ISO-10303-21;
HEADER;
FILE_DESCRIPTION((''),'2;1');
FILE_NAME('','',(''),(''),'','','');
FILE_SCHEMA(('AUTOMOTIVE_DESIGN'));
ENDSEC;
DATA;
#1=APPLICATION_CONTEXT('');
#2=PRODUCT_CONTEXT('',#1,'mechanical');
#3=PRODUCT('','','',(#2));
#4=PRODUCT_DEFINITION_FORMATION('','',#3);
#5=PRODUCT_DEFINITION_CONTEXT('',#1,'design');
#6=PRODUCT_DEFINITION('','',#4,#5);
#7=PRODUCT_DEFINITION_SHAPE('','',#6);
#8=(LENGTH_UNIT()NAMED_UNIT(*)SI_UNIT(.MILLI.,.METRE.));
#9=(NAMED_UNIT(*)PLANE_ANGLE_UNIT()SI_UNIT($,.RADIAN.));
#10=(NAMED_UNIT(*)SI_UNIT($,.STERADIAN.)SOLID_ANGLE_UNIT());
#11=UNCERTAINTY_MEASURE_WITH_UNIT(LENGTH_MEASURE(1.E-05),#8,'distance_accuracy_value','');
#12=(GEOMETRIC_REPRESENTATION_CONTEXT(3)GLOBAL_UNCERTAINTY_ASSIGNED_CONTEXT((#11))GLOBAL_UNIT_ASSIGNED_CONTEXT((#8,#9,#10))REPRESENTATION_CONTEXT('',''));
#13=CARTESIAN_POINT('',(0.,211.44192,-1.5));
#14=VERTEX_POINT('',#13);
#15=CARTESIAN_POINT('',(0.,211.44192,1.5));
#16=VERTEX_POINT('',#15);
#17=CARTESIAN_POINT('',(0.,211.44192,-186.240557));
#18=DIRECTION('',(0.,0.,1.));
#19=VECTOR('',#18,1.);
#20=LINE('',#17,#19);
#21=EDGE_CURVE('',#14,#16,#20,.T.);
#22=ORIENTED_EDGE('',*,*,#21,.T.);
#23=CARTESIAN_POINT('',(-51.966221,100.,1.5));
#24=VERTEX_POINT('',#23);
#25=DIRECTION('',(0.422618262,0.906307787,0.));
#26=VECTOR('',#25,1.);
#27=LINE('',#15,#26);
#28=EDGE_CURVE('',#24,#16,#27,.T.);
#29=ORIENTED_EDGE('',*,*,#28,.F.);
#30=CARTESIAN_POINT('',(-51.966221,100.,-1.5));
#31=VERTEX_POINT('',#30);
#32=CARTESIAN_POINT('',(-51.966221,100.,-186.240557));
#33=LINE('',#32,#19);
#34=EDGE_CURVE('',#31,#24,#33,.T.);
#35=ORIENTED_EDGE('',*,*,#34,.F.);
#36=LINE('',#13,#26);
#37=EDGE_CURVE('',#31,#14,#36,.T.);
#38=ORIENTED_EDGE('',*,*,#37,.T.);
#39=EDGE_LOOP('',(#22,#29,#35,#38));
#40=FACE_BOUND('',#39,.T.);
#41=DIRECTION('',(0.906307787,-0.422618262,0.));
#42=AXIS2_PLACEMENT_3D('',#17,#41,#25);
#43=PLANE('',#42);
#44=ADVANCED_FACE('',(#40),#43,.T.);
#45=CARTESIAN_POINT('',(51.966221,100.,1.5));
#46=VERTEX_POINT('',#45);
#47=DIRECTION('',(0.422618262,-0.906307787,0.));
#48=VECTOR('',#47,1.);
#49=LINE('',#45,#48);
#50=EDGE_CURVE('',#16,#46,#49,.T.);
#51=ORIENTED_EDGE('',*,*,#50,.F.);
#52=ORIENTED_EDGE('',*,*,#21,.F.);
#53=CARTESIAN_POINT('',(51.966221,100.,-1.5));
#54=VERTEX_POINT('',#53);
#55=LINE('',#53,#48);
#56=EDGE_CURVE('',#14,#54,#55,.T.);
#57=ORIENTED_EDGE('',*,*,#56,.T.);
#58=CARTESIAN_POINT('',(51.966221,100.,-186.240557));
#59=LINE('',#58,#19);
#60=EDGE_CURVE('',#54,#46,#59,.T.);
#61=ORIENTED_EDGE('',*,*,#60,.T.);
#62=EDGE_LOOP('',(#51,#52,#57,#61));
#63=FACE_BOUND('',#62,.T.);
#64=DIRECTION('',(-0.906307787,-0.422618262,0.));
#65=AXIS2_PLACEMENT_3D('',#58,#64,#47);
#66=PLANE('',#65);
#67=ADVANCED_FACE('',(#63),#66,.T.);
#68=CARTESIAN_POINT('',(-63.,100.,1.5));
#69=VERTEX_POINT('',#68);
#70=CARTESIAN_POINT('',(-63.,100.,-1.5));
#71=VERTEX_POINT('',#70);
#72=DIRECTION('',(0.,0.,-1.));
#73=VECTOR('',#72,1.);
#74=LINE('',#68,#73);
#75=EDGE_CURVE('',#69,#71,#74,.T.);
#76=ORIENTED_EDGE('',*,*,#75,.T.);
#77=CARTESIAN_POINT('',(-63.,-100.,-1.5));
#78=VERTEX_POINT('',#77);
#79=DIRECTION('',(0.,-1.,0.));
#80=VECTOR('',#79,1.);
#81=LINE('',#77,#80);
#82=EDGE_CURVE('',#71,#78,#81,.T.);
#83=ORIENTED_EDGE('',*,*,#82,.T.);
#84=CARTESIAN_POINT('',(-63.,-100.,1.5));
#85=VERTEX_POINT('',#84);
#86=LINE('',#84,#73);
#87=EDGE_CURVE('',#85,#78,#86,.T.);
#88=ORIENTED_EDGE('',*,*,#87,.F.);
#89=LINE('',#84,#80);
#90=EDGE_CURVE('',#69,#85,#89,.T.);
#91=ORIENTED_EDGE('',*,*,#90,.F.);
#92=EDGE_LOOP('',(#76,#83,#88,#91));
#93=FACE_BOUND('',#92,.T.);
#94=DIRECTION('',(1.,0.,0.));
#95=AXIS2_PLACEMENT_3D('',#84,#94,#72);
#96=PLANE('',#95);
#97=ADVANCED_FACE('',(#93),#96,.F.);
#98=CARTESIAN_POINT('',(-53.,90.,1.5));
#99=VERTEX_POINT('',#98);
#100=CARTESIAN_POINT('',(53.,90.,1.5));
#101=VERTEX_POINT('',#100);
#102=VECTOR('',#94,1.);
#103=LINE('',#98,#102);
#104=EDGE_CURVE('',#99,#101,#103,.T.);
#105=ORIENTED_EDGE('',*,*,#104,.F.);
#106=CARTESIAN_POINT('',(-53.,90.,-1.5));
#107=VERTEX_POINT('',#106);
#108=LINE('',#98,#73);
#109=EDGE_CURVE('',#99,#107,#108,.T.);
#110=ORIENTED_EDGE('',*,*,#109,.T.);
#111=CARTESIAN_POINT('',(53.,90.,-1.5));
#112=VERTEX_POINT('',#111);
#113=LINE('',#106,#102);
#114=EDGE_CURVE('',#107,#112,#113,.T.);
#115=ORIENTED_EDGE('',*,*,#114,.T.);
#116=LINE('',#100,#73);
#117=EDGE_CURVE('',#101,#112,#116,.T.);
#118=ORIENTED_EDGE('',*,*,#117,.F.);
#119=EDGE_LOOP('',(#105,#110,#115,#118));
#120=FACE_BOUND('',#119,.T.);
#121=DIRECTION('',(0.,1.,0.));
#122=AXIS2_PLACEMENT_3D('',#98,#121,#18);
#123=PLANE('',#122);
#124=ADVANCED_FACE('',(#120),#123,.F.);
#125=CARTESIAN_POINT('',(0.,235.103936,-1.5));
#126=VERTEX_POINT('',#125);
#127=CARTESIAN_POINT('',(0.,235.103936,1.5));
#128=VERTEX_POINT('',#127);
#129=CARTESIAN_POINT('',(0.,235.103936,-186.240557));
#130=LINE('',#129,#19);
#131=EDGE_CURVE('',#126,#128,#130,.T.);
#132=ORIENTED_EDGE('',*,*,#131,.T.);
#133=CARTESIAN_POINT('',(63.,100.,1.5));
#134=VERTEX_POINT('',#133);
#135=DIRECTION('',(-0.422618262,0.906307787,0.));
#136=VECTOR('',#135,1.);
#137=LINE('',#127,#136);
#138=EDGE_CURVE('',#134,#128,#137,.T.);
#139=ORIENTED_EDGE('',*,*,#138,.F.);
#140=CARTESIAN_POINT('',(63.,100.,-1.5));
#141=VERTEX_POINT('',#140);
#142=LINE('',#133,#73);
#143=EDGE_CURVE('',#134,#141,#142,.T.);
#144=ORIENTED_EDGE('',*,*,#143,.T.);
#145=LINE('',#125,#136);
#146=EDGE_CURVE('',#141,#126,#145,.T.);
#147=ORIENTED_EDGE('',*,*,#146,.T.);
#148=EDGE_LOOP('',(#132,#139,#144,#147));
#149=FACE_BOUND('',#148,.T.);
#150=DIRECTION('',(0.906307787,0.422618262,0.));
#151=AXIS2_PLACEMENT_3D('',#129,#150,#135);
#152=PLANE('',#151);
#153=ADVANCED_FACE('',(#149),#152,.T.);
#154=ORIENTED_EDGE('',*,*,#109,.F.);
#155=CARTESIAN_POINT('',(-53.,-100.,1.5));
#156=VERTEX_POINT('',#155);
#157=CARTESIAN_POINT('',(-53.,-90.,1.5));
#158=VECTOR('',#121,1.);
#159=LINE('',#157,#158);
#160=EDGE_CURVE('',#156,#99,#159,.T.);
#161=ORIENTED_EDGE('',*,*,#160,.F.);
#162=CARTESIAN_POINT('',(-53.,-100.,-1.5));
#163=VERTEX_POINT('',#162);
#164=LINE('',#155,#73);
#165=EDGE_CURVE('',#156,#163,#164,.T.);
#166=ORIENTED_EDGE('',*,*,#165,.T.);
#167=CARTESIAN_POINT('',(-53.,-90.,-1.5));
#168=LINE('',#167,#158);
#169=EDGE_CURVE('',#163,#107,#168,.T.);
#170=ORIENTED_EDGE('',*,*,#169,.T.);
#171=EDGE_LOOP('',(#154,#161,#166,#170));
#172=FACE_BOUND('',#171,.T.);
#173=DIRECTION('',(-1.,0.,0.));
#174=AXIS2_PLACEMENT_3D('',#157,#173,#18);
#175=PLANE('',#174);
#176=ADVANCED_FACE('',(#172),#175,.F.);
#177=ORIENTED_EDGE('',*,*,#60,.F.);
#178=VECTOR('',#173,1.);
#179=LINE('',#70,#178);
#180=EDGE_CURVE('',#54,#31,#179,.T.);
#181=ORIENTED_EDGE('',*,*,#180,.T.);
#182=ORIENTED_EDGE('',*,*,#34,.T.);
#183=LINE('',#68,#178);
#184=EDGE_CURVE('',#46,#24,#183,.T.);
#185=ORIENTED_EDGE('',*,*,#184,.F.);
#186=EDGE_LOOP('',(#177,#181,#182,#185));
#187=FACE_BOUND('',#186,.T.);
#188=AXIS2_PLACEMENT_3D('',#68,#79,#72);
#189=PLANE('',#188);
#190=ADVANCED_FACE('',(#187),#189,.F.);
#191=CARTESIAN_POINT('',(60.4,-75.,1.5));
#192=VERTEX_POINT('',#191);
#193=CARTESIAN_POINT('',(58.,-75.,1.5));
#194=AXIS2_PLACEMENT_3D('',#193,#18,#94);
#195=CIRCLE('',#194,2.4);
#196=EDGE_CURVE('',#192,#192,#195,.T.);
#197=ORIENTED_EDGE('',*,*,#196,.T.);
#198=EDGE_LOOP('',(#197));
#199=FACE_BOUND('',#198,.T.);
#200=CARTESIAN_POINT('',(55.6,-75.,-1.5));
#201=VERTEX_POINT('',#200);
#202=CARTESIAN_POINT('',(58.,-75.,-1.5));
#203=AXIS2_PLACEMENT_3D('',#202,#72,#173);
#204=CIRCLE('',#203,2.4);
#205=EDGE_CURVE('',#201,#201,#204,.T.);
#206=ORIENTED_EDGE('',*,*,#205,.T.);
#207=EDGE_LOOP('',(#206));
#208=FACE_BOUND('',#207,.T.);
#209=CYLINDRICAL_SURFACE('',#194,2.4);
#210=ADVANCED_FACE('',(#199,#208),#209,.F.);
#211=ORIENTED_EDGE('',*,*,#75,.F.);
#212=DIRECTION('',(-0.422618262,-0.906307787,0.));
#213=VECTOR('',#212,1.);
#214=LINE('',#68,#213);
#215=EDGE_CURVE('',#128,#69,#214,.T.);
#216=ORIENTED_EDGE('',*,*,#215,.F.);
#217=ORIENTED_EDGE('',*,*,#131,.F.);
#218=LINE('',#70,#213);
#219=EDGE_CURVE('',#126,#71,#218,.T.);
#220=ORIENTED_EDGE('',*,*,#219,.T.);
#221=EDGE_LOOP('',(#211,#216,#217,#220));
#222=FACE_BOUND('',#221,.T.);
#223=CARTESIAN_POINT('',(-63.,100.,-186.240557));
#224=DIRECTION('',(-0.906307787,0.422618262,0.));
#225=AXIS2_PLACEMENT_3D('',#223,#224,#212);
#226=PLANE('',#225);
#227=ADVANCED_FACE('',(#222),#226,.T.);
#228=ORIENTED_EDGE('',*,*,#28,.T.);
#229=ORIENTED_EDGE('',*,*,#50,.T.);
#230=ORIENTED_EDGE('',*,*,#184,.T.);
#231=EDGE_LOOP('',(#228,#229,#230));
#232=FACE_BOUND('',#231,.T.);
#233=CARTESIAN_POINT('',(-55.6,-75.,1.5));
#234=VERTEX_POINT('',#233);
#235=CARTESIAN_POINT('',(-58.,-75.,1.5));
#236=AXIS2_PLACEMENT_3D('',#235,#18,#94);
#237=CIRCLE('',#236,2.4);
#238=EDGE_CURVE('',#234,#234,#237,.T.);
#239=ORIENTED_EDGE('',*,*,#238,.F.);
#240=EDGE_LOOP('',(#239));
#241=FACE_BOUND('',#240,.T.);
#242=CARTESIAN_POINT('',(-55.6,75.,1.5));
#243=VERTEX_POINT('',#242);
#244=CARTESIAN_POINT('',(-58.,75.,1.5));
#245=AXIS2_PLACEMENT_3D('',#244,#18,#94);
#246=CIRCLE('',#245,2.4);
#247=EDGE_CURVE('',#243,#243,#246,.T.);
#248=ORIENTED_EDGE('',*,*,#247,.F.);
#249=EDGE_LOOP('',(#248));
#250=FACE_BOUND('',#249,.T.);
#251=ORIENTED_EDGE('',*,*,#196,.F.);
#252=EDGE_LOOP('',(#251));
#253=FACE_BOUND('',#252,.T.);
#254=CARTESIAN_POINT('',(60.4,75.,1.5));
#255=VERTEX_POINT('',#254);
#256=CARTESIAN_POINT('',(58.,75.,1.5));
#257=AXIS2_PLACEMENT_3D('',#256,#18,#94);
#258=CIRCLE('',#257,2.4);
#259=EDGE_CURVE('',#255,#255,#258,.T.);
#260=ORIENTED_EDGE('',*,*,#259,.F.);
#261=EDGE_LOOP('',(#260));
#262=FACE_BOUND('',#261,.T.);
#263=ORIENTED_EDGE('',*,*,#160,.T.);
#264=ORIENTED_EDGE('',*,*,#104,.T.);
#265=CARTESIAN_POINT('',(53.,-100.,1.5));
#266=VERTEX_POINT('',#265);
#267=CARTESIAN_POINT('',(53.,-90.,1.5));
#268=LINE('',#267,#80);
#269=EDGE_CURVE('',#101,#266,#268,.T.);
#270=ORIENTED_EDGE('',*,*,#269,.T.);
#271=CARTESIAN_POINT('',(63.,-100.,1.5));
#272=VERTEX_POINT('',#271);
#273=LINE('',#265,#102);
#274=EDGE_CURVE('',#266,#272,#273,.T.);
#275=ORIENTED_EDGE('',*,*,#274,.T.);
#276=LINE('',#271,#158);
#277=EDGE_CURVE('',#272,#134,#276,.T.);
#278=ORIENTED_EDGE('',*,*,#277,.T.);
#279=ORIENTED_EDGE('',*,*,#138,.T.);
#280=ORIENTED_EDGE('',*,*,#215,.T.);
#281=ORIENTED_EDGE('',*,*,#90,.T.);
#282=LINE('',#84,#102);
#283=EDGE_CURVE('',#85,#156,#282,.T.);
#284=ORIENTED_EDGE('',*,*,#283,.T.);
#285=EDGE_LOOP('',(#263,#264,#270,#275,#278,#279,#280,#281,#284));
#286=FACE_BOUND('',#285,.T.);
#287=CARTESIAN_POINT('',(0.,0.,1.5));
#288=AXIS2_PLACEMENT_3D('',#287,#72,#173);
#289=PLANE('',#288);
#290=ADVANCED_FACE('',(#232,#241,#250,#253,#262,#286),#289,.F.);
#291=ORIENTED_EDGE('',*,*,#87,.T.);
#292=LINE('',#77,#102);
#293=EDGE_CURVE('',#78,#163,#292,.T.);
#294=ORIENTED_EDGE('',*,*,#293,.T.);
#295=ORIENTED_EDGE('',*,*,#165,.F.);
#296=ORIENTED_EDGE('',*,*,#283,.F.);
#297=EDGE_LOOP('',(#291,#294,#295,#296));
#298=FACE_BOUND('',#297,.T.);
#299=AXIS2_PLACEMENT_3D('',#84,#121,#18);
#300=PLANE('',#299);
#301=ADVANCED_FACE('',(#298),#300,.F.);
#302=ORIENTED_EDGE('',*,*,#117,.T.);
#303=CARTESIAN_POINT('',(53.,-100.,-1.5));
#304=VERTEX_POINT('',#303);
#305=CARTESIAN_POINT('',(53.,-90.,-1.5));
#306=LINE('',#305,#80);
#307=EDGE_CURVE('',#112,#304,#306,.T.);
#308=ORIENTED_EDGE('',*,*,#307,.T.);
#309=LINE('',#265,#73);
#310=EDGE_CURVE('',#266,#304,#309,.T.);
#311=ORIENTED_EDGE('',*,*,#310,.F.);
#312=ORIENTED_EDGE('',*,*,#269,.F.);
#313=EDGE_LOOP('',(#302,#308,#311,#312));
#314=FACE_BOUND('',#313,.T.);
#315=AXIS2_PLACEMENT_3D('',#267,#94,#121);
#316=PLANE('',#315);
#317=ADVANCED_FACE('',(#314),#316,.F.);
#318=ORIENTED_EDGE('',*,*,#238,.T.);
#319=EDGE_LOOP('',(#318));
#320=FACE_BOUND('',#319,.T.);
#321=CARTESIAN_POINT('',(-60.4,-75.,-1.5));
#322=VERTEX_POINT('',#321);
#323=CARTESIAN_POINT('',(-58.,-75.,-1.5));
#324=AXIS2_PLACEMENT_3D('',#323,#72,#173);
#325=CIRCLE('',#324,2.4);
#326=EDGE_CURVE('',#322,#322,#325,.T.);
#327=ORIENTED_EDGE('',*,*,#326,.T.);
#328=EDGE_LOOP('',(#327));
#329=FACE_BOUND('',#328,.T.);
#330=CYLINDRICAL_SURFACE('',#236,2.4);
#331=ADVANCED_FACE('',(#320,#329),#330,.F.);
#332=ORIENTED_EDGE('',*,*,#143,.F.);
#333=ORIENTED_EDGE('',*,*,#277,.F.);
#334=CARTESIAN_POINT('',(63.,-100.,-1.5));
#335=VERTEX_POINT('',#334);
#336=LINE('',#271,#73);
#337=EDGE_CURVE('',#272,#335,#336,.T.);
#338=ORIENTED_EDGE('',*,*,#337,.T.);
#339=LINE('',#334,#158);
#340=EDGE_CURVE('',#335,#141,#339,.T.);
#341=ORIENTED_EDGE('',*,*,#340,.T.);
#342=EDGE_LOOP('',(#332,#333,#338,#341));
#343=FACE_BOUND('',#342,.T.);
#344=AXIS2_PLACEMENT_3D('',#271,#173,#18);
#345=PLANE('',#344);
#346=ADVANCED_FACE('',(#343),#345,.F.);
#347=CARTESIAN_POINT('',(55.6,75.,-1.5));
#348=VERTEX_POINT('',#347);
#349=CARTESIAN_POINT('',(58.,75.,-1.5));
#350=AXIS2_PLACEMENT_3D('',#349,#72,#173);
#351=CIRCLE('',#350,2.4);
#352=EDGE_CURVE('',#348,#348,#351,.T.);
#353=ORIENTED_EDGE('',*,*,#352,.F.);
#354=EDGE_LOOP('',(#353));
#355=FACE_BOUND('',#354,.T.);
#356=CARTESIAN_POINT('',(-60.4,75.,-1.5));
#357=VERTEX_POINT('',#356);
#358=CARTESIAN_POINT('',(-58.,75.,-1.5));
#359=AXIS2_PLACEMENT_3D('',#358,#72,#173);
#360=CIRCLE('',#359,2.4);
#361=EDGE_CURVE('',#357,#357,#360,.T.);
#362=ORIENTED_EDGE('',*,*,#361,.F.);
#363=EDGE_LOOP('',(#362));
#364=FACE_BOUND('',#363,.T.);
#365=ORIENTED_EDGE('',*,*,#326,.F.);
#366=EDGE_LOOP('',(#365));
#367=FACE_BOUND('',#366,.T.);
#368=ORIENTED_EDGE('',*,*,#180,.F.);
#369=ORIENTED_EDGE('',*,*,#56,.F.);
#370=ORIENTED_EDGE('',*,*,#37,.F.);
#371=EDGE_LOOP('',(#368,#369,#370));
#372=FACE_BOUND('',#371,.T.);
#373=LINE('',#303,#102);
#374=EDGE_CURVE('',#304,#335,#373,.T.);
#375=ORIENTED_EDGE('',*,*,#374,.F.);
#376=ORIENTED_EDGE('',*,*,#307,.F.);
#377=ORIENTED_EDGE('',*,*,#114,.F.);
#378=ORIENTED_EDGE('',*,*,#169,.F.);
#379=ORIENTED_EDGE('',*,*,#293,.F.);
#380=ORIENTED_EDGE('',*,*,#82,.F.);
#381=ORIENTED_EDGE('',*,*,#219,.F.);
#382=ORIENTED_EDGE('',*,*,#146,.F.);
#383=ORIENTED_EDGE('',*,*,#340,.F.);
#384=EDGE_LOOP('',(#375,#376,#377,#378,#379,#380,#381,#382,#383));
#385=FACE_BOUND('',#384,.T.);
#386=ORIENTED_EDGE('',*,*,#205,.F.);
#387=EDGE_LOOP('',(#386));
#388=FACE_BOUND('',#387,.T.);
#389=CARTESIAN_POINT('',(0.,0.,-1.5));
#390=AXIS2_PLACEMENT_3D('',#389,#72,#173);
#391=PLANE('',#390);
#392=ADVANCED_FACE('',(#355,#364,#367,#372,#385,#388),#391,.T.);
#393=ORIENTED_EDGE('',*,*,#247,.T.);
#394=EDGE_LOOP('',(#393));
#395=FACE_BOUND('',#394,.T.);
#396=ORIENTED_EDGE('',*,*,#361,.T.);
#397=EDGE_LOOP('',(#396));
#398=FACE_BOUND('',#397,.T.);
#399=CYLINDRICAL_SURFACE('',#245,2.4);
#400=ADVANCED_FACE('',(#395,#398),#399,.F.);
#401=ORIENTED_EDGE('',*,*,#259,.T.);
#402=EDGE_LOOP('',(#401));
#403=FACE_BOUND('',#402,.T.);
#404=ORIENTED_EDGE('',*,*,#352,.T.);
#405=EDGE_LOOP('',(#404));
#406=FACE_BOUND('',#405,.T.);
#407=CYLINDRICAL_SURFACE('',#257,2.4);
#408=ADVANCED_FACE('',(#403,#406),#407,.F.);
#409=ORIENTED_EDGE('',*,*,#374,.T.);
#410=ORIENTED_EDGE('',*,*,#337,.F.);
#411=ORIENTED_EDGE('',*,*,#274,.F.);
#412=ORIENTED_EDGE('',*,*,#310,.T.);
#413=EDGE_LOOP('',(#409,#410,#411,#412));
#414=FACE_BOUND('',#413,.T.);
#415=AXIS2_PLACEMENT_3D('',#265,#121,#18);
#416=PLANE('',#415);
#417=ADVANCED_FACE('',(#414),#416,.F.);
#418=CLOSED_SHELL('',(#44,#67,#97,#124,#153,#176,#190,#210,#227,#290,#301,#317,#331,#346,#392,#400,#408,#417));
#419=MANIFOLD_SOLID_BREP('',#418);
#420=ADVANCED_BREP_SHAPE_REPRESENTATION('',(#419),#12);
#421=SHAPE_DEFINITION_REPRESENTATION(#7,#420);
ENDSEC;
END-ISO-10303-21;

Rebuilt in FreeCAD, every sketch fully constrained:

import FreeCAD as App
import Part
import Sketcher
from FreeCAD import Vector
Q = App.Units.Quantity


def add_polygon(sketch, points):
    """Adds a closed chain of lines whose ends are joined by coincident constraints."""
    first, n = sketch.GeometryCount, len(points)
    for a, b in zip(points, points[1:] + points[:1]):
        sketch.addGeometry(Part.LineSegment(App.Vector(*a, 0), App.Vector(*b, 0)), False)
    for i in range(n):
        sketch.addConstraint(Sketcher.Constraint("Coincident", first + i, 2, first + (i + 1) % n, 1))

doc = App.newDocument("Part")
body = doc.addObject("PartDesign::Body", "Body")

sketch1 = body.newObject("Sketcher::SketchObject", "Sketch")
sketch1.AttachmentSupport = (doc.getObject("XY_Plane"), [""])
sketch1.MapMode = "FlatFace"
add_polygon(sketch1, [(-63, -100), (-53, -100), (-53, 90), (53, 90), (53, -100), (63, -100), (63, 100), (-63, 100)])
sketch1.addConstraint([
    Sketcher.Constraint("Horizontal", 0),
    Sketcher.Constraint("Vertical", 1),
    Sketcher.Constraint("Horizontal", 2),
    Sketcher.Constraint("Vertical", 3),
    Sketcher.Constraint("Horizontal", 4),
    Sketcher.Constraint("Vertical", 5),
    Sketcher.Constraint("Horizontal", 6),
    Sketcher.Constraint("Vertical", 7),
    Sketcher.Constraint("Symmetric", 4, 2, 6, 2, -1, 1),
    Sketcher.Constraint("Symmetric", 0, 2, 3, 2, -2),
    Sketcher.Constraint("DistanceX", 0, 1, 0, 2, 10.0),
    Sketcher.Constraint("DistanceX", 2, 1, 2, 2, 106.0),
    Sketcher.Constraint("DistanceY", 1, 1, 1, 2, 190.0),
    Sketcher.Constraint("DistanceY", 5, 1, 5, 2, 200.0),
])
pad1 = body.newObject("PartDesign::Pad", "Pad")
pad1.Profile = sketch1
pad1.Length = 3
pad1.Midplane = True

sketch2 = body.newObject("Sketcher::SketchObject", "Sketch001")
sketch2.AttachmentSupport = (doc.getObject("XY_Plane"), [""])
sketch2.MapMode = "FlatFace"
sketch2.AttachmentOffset = App.Placement(Vector(0, 0, 1.5), App.Rotation())
add_polygon(sketch2, [(0, 235), (-63, 100), (-52, 100), (0, 211), (52, 100), (63, 100)])
sketch2.addConstraint([
    Sketcher.Constraint("Horizontal", 1),
    Sketcher.Constraint("Horizontal", 4),
    Sketcher.Constraint("Symmetric", 1, 2, 3, 2, -2),
    Sketcher.Constraint("PointOnObject", 2, 2, -2),
    Sketcher.Constraint("PointOnObject", 5, 2, -2),
    Sketcher.Constraint("Parallel", 0, 2),
    Sketcher.Constraint("Parallel", 3, 5),
    Sketcher.Constraint("Angle", 0, Q("-115 deg")),
    Sketcher.Constraint("DistanceX", 0, 2, -1, 1, 63.0),
    Sketcher.Constraint("DistanceY", -1, 1, 0, 2, 100.0),
    Sketcher.Constraint("DistanceX", 1, 1, 1, 2, 11.033779),
])
pad2 = body.newObject("PartDesign::Pad", "Pad001")
pad2.Profile = sketch2
pad2.Length = 3
pad2.Reversed = True

sketch3 = body.newObject("Sketcher::SketchObject", "Sketch002")
sketch3.AttachmentSupport = (doc.getObject("XY_Plane"), [""])
sketch3.MapMode = "FlatFace"
sketch3.AttachmentOffset = App.Placement(Vector(0, 0, 1.5), App.Rotation())
sketch3.addGeometry(Part.Circle(Vector(-58, 75, 0), Vector(0, 0, 1), 2.4), False)
sketch3.addConstraint([
    Sketcher.Constraint("Diameter", 0, 4.8),
    Sketcher.Constraint("DistanceX", 0, 3, -1, 1, 58.0),
    Sketcher.Constraint("DistanceY", -1, 1, 0, 3, 75.0),
])
doc.recompute()
hole = body.newObject("PartDesign::Hole", "Hole")
hole.Profile = sketch3
hole.ThreadType = "None"
hole.Diameter = 4.8
hole.DepthType = "ThroughAll"
doc.recompute()

mirrored = body.newObject("PartDesign::Mirrored", "Mirrored")
mirrored.Originals = [hole]
mirrored.MirrorPlane = (doc.getObject("XZ_Plane"), [""])
body.Tip = mirrored
doc.recompute()

mirrored2 = body.newObject("PartDesign::Mirrored", "Mirrored001")
mirrored2.Originals = [hole]
mirrored2.MirrorPlane = (doc.getObject("YZ_Plane"), [""])
body.Tip = mirrored2

sketch4 = body.newObject("Sketcher::SketchObject", "Sketch003")
sketch4.AttachmentSupport = (doc.getObject("XY_Plane"), [""])
sketch4.MapMode = "FlatFace"
sketch4.AttachmentOffset = App.Placement(Vector(0, 0, 1.5), App.Rotation())
sketch4.addGeometry(Part.Circle(Vector(58, -75, 0), Vector(0, 0, 1), 2.4), False)
sketch4.addConstraint([
    Sketcher.Constraint("Diameter", 0, 4.8),
    Sketcher.Constraint("DistanceX", -1, 1, 0, 3, 58.0),
    Sketcher.Constraint("DistanceY", 0, 3, -1, 1, 75.0),
])
doc.recompute()
hole2 = body.newObject("PartDesign::Hole", "Hole001")
hole2.Profile = sketch4
hole2.ThreadType = "None"
hole2.Diameter = 4.8
hole2.DepthType = "ThroughAll"

doc.recompute()
